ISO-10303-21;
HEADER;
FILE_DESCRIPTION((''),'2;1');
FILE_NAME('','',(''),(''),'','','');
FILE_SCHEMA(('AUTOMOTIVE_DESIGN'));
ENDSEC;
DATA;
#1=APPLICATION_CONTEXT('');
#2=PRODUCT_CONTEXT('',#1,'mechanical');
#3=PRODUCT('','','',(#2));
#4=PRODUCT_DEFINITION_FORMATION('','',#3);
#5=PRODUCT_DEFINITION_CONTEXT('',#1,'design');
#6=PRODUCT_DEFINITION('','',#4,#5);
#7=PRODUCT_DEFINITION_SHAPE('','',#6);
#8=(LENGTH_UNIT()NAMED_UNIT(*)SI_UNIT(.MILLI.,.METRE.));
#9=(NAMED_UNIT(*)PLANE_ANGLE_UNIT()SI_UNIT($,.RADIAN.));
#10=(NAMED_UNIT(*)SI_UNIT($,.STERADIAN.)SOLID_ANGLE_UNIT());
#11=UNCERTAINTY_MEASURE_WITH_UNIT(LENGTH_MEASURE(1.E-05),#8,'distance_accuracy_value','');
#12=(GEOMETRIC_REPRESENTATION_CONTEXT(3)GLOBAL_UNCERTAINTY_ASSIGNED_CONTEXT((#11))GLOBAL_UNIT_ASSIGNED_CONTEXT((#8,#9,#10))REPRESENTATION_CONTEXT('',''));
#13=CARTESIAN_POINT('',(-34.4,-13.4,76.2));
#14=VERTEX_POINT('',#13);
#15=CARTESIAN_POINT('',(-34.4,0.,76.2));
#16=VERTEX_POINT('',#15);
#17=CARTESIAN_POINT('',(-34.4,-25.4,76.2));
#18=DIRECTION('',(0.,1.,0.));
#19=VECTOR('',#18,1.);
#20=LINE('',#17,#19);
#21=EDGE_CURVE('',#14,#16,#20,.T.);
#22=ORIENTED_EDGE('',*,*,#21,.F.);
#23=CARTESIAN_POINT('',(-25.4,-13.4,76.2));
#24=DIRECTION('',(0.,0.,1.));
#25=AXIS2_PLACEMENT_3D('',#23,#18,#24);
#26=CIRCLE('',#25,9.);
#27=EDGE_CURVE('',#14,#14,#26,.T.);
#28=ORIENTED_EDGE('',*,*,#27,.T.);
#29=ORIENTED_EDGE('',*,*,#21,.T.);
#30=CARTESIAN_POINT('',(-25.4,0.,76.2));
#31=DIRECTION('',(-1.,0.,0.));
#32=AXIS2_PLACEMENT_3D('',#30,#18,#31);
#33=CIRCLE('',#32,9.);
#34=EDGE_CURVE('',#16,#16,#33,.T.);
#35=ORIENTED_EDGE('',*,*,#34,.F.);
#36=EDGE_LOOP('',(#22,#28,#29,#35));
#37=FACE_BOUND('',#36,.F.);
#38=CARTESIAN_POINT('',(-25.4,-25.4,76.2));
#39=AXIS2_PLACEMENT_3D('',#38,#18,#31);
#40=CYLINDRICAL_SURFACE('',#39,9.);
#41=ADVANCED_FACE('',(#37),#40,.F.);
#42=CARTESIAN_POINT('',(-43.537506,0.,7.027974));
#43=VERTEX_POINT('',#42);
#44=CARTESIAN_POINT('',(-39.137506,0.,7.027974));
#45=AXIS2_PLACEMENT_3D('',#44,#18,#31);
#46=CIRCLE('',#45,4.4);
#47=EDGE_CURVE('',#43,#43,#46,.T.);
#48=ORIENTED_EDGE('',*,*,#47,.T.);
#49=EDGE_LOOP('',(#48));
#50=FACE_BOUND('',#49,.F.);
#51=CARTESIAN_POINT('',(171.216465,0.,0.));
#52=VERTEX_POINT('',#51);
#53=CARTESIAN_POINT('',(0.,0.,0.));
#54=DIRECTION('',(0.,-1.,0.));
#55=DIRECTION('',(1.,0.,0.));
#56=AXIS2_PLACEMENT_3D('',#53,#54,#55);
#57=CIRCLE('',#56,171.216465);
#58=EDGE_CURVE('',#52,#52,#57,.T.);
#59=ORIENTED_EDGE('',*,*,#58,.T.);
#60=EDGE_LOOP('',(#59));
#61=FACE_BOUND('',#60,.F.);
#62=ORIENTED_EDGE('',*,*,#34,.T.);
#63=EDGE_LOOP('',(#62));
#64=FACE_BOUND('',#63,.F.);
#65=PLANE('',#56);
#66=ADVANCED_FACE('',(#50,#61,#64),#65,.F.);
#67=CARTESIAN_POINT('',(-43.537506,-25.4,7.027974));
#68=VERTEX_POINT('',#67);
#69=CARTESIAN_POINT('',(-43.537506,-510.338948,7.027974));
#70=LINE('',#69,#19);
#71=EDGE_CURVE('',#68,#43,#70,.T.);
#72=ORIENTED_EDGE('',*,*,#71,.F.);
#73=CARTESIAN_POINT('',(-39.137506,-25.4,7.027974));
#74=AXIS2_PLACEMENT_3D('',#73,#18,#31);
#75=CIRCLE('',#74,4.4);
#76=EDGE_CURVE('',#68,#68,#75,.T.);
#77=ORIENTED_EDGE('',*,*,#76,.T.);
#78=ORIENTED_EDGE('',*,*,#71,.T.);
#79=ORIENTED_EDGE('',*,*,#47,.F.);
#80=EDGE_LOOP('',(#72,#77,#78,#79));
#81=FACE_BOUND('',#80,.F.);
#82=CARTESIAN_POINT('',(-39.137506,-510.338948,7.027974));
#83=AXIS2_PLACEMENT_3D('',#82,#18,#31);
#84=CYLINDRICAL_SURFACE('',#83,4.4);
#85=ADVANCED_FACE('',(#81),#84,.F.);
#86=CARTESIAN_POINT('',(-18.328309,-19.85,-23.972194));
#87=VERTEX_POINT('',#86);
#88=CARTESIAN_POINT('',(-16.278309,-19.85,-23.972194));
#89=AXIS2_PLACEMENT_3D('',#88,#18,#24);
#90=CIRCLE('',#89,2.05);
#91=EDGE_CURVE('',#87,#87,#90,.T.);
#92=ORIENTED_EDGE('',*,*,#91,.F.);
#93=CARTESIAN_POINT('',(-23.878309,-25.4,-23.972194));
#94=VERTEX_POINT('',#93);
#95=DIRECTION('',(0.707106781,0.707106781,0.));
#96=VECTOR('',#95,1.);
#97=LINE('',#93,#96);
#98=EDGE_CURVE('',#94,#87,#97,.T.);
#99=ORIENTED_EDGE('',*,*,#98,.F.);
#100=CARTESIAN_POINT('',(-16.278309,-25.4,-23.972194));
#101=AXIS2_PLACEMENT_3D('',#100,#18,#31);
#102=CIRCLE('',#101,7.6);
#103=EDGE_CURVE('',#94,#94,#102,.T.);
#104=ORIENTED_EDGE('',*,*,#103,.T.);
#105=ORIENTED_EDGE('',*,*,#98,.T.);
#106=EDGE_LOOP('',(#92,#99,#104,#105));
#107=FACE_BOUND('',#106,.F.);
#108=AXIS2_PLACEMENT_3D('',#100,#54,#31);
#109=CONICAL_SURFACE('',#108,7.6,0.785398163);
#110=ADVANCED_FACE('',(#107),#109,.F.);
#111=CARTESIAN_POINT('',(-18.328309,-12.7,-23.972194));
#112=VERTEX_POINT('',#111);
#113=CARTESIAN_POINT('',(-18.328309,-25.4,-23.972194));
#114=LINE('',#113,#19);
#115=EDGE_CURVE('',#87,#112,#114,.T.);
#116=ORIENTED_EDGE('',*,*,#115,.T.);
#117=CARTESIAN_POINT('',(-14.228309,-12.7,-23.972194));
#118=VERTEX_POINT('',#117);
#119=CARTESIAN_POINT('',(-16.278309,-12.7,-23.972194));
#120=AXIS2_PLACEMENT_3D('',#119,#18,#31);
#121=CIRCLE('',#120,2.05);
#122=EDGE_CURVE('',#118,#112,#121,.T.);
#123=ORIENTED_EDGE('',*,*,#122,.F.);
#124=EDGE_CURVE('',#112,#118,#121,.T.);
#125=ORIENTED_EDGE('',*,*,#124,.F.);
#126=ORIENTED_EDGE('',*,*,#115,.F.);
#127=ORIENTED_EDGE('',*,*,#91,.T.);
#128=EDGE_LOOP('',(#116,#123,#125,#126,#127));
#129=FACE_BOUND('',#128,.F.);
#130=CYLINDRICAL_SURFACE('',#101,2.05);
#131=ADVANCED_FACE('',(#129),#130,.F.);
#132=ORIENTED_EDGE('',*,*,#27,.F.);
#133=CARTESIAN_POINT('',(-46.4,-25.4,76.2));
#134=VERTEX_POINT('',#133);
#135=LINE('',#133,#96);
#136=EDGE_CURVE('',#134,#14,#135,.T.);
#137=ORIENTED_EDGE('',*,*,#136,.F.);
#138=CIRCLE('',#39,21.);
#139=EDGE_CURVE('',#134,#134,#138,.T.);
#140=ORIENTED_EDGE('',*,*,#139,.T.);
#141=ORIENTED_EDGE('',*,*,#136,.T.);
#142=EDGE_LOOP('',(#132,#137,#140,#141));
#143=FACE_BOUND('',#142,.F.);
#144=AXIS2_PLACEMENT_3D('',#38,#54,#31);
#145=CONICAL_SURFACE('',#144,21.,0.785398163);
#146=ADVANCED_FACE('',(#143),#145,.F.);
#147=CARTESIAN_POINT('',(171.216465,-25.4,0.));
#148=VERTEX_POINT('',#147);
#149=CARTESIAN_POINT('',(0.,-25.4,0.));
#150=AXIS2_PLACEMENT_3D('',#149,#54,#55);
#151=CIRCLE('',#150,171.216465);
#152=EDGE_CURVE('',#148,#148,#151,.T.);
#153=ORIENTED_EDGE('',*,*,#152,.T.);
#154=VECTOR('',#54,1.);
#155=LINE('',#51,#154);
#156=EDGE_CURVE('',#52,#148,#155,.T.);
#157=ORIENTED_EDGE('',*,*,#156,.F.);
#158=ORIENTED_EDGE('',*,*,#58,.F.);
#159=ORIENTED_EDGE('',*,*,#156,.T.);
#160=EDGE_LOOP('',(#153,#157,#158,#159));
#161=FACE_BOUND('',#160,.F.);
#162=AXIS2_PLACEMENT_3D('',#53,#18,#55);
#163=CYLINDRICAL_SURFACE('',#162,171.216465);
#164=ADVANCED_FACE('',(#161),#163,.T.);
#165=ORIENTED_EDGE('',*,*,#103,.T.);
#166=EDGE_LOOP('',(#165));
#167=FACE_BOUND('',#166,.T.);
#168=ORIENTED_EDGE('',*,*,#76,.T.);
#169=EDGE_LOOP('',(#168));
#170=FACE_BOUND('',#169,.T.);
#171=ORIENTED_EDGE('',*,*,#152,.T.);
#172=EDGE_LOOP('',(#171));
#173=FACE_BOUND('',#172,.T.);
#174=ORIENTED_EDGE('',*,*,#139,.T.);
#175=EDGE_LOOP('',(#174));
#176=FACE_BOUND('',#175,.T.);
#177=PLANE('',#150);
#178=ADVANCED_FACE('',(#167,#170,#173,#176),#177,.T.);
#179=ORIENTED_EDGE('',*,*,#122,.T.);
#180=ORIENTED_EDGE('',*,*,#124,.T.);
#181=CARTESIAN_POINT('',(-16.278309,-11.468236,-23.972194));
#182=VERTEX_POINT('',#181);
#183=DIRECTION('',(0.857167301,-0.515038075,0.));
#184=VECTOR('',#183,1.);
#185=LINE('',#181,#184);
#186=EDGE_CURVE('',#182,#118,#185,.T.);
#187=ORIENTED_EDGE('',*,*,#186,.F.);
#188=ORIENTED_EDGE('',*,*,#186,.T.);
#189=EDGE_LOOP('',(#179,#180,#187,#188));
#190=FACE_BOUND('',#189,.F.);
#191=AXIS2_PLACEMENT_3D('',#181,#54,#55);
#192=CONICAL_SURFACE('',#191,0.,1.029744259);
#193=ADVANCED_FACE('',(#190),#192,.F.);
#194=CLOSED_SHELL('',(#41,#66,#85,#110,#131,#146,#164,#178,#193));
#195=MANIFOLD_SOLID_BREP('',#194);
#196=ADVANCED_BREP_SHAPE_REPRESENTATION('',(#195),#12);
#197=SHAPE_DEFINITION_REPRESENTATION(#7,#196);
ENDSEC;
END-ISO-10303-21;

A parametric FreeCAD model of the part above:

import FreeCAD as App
import Part
import Sketcher
Q = App.Units.Quantity

doc = App.newDocument("Part")
body = doc.addObject("PartDesign::Body", "Body")

sketch1 = doc.addObject("Sketcher::SketchObject", "Sketch")
body.addObject(sketch1)
sketch1.AttachmentSupport = (doc.XZ_Plane, [""])
sketch1.MapMode = "FlatFace"
sketch1.addGeometry(Part.Circle(App.Vector(0, 0, 0), App.Vector(0, 0, 1), 171), False)
sketch1.addConstraint([
    Sketcher.Constraint("Coincident", 0, 3, -1, 1),
    Sketcher.Constraint("Diameter", 0, Q("342.43293 mm")),
])
pad1 = doc.addObject("PartDesign::Pad", "Pad")
body.addObject(pad1)
pad1.Profile = sketch1
pad1.Length = 25.4

sketch2 = doc.addObject("Sketcher::SketchObject", "Sketch001")
body.addObject(sketch2)
sketch2.AttachmentSupport = (doc.XZ_Plane, [""])
sketch2.MapMode = "FlatFace"
sketch2.AttachmentOffset = App.Placement(App.Vector(0, 0, 25.4), App.Rotation())
sketch2.addGeometry(Part.Circle(App.Vector(-39.1, 7, 0), App.Vector(0, 0, 1), 4.4), False)
sketch2.addConstraint([
    Sketcher.Constraint("Diameter", 0, Q("8.8 mm")),
    Sketcher.Constraint("DistanceX", 0, 3, -1, 1, Q("39.137506 mm")),
    Sketcher.Constraint("DistanceY", -1, 1, 0, 3, Q("7.027974 mm")),
])
doc.recompute()
hole = doc.addObject("PartDesign::Hole", "Hole")
body.addObject(hole)
hole.Profile = sketch2
hole.ThreadType = "None"
hole.Diameter = 8.8
hole.DepthType = "ThroughAll"

sketch3 = doc.addObject("Sketcher::SketchObject", "Sketch002")
body.addObject(sketch3)
sketch3.AttachmentSupport = (doc.XZ_Plane, [""])
sketch3.MapMode = "FlatFace"
sketch3.AttachmentOffset = App.Placement(App.Vector(0, 0, 25.4), App.Rotation())
sketch3.addGeometry(Part.Circle(App.Vector(-25, 76, 0), App.Vector(0, 0, 1), 9), False)
sketch3.addConstraint([
    Sketcher.Constraint("Diameter", 0, Q("18 mm")),
    Sketcher.Constraint("DistanceX", 0, 3, -1, 1, Q("25.4 mm")),
    Sketcher.Constraint("DistanceY", -1, 1, 0, 3, Q("76.2 mm")),
])
doc.recompute()
hole2 = doc.addObject("PartDesign::Hole", "Hole001")
body.addObject(hole2)
hole2.Profile = sketch3
hole2.ThreadType = "None"
hole2.Diameter = 18
hole2.DepthType = "ThroughAll"
hole2.HoleCutType = "Countersink"
hole2.HoleCutDiameter = 42
hole2.HoleCutCountersinkAngle = 90

sketch4 = doc.addObject("Sketcher::SketchObject", "Sketch003")
body.addObject(sketch4)
sketch4.AttachmentSupport = (doc.XZ_Plane, [""])
sketch4.MapMode = "FlatFace"
sketch4.AttachmentOffset = App.Placement(App.Vector(0, 0, 25.4), App.Rotation())
sketch4.addGeometry(Part.Circle(App.Vector(-16.3, -24, 0), App.Vector(0, 0, 1), 2), False)
sketch4.addConstraint([
    Sketcher.Constraint("Diameter", 0, Q("4.1 mm")),
    Sketcher.Constraint("DistanceX", 0, 3, -1, 1, Q("16.278309 mm")),
    Sketcher.Constraint("DistanceY", 0, 3, -1, 1, Q("23.972194 mm")),
])
doc.recompute()
hole3 = doc.addObject("PartDesign::Hole", "Hole002")
body.addObject(hole3)
hole3.Profile = sketch4
hole3.ThreadType = "None"
hole3.Diameter = 4.1
hole3.DepthType = "Dimension"
hole3.Depth = 12.7
hole3.DrillPoint = "Angled"
hole3.DrillPointAngle = 118
hole3.HoleCutType = "Countersink"
hole3.HoleCutDiameter = 15.2
hole3.HoleCutCountersinkAngle = 90

doc.recompute()
